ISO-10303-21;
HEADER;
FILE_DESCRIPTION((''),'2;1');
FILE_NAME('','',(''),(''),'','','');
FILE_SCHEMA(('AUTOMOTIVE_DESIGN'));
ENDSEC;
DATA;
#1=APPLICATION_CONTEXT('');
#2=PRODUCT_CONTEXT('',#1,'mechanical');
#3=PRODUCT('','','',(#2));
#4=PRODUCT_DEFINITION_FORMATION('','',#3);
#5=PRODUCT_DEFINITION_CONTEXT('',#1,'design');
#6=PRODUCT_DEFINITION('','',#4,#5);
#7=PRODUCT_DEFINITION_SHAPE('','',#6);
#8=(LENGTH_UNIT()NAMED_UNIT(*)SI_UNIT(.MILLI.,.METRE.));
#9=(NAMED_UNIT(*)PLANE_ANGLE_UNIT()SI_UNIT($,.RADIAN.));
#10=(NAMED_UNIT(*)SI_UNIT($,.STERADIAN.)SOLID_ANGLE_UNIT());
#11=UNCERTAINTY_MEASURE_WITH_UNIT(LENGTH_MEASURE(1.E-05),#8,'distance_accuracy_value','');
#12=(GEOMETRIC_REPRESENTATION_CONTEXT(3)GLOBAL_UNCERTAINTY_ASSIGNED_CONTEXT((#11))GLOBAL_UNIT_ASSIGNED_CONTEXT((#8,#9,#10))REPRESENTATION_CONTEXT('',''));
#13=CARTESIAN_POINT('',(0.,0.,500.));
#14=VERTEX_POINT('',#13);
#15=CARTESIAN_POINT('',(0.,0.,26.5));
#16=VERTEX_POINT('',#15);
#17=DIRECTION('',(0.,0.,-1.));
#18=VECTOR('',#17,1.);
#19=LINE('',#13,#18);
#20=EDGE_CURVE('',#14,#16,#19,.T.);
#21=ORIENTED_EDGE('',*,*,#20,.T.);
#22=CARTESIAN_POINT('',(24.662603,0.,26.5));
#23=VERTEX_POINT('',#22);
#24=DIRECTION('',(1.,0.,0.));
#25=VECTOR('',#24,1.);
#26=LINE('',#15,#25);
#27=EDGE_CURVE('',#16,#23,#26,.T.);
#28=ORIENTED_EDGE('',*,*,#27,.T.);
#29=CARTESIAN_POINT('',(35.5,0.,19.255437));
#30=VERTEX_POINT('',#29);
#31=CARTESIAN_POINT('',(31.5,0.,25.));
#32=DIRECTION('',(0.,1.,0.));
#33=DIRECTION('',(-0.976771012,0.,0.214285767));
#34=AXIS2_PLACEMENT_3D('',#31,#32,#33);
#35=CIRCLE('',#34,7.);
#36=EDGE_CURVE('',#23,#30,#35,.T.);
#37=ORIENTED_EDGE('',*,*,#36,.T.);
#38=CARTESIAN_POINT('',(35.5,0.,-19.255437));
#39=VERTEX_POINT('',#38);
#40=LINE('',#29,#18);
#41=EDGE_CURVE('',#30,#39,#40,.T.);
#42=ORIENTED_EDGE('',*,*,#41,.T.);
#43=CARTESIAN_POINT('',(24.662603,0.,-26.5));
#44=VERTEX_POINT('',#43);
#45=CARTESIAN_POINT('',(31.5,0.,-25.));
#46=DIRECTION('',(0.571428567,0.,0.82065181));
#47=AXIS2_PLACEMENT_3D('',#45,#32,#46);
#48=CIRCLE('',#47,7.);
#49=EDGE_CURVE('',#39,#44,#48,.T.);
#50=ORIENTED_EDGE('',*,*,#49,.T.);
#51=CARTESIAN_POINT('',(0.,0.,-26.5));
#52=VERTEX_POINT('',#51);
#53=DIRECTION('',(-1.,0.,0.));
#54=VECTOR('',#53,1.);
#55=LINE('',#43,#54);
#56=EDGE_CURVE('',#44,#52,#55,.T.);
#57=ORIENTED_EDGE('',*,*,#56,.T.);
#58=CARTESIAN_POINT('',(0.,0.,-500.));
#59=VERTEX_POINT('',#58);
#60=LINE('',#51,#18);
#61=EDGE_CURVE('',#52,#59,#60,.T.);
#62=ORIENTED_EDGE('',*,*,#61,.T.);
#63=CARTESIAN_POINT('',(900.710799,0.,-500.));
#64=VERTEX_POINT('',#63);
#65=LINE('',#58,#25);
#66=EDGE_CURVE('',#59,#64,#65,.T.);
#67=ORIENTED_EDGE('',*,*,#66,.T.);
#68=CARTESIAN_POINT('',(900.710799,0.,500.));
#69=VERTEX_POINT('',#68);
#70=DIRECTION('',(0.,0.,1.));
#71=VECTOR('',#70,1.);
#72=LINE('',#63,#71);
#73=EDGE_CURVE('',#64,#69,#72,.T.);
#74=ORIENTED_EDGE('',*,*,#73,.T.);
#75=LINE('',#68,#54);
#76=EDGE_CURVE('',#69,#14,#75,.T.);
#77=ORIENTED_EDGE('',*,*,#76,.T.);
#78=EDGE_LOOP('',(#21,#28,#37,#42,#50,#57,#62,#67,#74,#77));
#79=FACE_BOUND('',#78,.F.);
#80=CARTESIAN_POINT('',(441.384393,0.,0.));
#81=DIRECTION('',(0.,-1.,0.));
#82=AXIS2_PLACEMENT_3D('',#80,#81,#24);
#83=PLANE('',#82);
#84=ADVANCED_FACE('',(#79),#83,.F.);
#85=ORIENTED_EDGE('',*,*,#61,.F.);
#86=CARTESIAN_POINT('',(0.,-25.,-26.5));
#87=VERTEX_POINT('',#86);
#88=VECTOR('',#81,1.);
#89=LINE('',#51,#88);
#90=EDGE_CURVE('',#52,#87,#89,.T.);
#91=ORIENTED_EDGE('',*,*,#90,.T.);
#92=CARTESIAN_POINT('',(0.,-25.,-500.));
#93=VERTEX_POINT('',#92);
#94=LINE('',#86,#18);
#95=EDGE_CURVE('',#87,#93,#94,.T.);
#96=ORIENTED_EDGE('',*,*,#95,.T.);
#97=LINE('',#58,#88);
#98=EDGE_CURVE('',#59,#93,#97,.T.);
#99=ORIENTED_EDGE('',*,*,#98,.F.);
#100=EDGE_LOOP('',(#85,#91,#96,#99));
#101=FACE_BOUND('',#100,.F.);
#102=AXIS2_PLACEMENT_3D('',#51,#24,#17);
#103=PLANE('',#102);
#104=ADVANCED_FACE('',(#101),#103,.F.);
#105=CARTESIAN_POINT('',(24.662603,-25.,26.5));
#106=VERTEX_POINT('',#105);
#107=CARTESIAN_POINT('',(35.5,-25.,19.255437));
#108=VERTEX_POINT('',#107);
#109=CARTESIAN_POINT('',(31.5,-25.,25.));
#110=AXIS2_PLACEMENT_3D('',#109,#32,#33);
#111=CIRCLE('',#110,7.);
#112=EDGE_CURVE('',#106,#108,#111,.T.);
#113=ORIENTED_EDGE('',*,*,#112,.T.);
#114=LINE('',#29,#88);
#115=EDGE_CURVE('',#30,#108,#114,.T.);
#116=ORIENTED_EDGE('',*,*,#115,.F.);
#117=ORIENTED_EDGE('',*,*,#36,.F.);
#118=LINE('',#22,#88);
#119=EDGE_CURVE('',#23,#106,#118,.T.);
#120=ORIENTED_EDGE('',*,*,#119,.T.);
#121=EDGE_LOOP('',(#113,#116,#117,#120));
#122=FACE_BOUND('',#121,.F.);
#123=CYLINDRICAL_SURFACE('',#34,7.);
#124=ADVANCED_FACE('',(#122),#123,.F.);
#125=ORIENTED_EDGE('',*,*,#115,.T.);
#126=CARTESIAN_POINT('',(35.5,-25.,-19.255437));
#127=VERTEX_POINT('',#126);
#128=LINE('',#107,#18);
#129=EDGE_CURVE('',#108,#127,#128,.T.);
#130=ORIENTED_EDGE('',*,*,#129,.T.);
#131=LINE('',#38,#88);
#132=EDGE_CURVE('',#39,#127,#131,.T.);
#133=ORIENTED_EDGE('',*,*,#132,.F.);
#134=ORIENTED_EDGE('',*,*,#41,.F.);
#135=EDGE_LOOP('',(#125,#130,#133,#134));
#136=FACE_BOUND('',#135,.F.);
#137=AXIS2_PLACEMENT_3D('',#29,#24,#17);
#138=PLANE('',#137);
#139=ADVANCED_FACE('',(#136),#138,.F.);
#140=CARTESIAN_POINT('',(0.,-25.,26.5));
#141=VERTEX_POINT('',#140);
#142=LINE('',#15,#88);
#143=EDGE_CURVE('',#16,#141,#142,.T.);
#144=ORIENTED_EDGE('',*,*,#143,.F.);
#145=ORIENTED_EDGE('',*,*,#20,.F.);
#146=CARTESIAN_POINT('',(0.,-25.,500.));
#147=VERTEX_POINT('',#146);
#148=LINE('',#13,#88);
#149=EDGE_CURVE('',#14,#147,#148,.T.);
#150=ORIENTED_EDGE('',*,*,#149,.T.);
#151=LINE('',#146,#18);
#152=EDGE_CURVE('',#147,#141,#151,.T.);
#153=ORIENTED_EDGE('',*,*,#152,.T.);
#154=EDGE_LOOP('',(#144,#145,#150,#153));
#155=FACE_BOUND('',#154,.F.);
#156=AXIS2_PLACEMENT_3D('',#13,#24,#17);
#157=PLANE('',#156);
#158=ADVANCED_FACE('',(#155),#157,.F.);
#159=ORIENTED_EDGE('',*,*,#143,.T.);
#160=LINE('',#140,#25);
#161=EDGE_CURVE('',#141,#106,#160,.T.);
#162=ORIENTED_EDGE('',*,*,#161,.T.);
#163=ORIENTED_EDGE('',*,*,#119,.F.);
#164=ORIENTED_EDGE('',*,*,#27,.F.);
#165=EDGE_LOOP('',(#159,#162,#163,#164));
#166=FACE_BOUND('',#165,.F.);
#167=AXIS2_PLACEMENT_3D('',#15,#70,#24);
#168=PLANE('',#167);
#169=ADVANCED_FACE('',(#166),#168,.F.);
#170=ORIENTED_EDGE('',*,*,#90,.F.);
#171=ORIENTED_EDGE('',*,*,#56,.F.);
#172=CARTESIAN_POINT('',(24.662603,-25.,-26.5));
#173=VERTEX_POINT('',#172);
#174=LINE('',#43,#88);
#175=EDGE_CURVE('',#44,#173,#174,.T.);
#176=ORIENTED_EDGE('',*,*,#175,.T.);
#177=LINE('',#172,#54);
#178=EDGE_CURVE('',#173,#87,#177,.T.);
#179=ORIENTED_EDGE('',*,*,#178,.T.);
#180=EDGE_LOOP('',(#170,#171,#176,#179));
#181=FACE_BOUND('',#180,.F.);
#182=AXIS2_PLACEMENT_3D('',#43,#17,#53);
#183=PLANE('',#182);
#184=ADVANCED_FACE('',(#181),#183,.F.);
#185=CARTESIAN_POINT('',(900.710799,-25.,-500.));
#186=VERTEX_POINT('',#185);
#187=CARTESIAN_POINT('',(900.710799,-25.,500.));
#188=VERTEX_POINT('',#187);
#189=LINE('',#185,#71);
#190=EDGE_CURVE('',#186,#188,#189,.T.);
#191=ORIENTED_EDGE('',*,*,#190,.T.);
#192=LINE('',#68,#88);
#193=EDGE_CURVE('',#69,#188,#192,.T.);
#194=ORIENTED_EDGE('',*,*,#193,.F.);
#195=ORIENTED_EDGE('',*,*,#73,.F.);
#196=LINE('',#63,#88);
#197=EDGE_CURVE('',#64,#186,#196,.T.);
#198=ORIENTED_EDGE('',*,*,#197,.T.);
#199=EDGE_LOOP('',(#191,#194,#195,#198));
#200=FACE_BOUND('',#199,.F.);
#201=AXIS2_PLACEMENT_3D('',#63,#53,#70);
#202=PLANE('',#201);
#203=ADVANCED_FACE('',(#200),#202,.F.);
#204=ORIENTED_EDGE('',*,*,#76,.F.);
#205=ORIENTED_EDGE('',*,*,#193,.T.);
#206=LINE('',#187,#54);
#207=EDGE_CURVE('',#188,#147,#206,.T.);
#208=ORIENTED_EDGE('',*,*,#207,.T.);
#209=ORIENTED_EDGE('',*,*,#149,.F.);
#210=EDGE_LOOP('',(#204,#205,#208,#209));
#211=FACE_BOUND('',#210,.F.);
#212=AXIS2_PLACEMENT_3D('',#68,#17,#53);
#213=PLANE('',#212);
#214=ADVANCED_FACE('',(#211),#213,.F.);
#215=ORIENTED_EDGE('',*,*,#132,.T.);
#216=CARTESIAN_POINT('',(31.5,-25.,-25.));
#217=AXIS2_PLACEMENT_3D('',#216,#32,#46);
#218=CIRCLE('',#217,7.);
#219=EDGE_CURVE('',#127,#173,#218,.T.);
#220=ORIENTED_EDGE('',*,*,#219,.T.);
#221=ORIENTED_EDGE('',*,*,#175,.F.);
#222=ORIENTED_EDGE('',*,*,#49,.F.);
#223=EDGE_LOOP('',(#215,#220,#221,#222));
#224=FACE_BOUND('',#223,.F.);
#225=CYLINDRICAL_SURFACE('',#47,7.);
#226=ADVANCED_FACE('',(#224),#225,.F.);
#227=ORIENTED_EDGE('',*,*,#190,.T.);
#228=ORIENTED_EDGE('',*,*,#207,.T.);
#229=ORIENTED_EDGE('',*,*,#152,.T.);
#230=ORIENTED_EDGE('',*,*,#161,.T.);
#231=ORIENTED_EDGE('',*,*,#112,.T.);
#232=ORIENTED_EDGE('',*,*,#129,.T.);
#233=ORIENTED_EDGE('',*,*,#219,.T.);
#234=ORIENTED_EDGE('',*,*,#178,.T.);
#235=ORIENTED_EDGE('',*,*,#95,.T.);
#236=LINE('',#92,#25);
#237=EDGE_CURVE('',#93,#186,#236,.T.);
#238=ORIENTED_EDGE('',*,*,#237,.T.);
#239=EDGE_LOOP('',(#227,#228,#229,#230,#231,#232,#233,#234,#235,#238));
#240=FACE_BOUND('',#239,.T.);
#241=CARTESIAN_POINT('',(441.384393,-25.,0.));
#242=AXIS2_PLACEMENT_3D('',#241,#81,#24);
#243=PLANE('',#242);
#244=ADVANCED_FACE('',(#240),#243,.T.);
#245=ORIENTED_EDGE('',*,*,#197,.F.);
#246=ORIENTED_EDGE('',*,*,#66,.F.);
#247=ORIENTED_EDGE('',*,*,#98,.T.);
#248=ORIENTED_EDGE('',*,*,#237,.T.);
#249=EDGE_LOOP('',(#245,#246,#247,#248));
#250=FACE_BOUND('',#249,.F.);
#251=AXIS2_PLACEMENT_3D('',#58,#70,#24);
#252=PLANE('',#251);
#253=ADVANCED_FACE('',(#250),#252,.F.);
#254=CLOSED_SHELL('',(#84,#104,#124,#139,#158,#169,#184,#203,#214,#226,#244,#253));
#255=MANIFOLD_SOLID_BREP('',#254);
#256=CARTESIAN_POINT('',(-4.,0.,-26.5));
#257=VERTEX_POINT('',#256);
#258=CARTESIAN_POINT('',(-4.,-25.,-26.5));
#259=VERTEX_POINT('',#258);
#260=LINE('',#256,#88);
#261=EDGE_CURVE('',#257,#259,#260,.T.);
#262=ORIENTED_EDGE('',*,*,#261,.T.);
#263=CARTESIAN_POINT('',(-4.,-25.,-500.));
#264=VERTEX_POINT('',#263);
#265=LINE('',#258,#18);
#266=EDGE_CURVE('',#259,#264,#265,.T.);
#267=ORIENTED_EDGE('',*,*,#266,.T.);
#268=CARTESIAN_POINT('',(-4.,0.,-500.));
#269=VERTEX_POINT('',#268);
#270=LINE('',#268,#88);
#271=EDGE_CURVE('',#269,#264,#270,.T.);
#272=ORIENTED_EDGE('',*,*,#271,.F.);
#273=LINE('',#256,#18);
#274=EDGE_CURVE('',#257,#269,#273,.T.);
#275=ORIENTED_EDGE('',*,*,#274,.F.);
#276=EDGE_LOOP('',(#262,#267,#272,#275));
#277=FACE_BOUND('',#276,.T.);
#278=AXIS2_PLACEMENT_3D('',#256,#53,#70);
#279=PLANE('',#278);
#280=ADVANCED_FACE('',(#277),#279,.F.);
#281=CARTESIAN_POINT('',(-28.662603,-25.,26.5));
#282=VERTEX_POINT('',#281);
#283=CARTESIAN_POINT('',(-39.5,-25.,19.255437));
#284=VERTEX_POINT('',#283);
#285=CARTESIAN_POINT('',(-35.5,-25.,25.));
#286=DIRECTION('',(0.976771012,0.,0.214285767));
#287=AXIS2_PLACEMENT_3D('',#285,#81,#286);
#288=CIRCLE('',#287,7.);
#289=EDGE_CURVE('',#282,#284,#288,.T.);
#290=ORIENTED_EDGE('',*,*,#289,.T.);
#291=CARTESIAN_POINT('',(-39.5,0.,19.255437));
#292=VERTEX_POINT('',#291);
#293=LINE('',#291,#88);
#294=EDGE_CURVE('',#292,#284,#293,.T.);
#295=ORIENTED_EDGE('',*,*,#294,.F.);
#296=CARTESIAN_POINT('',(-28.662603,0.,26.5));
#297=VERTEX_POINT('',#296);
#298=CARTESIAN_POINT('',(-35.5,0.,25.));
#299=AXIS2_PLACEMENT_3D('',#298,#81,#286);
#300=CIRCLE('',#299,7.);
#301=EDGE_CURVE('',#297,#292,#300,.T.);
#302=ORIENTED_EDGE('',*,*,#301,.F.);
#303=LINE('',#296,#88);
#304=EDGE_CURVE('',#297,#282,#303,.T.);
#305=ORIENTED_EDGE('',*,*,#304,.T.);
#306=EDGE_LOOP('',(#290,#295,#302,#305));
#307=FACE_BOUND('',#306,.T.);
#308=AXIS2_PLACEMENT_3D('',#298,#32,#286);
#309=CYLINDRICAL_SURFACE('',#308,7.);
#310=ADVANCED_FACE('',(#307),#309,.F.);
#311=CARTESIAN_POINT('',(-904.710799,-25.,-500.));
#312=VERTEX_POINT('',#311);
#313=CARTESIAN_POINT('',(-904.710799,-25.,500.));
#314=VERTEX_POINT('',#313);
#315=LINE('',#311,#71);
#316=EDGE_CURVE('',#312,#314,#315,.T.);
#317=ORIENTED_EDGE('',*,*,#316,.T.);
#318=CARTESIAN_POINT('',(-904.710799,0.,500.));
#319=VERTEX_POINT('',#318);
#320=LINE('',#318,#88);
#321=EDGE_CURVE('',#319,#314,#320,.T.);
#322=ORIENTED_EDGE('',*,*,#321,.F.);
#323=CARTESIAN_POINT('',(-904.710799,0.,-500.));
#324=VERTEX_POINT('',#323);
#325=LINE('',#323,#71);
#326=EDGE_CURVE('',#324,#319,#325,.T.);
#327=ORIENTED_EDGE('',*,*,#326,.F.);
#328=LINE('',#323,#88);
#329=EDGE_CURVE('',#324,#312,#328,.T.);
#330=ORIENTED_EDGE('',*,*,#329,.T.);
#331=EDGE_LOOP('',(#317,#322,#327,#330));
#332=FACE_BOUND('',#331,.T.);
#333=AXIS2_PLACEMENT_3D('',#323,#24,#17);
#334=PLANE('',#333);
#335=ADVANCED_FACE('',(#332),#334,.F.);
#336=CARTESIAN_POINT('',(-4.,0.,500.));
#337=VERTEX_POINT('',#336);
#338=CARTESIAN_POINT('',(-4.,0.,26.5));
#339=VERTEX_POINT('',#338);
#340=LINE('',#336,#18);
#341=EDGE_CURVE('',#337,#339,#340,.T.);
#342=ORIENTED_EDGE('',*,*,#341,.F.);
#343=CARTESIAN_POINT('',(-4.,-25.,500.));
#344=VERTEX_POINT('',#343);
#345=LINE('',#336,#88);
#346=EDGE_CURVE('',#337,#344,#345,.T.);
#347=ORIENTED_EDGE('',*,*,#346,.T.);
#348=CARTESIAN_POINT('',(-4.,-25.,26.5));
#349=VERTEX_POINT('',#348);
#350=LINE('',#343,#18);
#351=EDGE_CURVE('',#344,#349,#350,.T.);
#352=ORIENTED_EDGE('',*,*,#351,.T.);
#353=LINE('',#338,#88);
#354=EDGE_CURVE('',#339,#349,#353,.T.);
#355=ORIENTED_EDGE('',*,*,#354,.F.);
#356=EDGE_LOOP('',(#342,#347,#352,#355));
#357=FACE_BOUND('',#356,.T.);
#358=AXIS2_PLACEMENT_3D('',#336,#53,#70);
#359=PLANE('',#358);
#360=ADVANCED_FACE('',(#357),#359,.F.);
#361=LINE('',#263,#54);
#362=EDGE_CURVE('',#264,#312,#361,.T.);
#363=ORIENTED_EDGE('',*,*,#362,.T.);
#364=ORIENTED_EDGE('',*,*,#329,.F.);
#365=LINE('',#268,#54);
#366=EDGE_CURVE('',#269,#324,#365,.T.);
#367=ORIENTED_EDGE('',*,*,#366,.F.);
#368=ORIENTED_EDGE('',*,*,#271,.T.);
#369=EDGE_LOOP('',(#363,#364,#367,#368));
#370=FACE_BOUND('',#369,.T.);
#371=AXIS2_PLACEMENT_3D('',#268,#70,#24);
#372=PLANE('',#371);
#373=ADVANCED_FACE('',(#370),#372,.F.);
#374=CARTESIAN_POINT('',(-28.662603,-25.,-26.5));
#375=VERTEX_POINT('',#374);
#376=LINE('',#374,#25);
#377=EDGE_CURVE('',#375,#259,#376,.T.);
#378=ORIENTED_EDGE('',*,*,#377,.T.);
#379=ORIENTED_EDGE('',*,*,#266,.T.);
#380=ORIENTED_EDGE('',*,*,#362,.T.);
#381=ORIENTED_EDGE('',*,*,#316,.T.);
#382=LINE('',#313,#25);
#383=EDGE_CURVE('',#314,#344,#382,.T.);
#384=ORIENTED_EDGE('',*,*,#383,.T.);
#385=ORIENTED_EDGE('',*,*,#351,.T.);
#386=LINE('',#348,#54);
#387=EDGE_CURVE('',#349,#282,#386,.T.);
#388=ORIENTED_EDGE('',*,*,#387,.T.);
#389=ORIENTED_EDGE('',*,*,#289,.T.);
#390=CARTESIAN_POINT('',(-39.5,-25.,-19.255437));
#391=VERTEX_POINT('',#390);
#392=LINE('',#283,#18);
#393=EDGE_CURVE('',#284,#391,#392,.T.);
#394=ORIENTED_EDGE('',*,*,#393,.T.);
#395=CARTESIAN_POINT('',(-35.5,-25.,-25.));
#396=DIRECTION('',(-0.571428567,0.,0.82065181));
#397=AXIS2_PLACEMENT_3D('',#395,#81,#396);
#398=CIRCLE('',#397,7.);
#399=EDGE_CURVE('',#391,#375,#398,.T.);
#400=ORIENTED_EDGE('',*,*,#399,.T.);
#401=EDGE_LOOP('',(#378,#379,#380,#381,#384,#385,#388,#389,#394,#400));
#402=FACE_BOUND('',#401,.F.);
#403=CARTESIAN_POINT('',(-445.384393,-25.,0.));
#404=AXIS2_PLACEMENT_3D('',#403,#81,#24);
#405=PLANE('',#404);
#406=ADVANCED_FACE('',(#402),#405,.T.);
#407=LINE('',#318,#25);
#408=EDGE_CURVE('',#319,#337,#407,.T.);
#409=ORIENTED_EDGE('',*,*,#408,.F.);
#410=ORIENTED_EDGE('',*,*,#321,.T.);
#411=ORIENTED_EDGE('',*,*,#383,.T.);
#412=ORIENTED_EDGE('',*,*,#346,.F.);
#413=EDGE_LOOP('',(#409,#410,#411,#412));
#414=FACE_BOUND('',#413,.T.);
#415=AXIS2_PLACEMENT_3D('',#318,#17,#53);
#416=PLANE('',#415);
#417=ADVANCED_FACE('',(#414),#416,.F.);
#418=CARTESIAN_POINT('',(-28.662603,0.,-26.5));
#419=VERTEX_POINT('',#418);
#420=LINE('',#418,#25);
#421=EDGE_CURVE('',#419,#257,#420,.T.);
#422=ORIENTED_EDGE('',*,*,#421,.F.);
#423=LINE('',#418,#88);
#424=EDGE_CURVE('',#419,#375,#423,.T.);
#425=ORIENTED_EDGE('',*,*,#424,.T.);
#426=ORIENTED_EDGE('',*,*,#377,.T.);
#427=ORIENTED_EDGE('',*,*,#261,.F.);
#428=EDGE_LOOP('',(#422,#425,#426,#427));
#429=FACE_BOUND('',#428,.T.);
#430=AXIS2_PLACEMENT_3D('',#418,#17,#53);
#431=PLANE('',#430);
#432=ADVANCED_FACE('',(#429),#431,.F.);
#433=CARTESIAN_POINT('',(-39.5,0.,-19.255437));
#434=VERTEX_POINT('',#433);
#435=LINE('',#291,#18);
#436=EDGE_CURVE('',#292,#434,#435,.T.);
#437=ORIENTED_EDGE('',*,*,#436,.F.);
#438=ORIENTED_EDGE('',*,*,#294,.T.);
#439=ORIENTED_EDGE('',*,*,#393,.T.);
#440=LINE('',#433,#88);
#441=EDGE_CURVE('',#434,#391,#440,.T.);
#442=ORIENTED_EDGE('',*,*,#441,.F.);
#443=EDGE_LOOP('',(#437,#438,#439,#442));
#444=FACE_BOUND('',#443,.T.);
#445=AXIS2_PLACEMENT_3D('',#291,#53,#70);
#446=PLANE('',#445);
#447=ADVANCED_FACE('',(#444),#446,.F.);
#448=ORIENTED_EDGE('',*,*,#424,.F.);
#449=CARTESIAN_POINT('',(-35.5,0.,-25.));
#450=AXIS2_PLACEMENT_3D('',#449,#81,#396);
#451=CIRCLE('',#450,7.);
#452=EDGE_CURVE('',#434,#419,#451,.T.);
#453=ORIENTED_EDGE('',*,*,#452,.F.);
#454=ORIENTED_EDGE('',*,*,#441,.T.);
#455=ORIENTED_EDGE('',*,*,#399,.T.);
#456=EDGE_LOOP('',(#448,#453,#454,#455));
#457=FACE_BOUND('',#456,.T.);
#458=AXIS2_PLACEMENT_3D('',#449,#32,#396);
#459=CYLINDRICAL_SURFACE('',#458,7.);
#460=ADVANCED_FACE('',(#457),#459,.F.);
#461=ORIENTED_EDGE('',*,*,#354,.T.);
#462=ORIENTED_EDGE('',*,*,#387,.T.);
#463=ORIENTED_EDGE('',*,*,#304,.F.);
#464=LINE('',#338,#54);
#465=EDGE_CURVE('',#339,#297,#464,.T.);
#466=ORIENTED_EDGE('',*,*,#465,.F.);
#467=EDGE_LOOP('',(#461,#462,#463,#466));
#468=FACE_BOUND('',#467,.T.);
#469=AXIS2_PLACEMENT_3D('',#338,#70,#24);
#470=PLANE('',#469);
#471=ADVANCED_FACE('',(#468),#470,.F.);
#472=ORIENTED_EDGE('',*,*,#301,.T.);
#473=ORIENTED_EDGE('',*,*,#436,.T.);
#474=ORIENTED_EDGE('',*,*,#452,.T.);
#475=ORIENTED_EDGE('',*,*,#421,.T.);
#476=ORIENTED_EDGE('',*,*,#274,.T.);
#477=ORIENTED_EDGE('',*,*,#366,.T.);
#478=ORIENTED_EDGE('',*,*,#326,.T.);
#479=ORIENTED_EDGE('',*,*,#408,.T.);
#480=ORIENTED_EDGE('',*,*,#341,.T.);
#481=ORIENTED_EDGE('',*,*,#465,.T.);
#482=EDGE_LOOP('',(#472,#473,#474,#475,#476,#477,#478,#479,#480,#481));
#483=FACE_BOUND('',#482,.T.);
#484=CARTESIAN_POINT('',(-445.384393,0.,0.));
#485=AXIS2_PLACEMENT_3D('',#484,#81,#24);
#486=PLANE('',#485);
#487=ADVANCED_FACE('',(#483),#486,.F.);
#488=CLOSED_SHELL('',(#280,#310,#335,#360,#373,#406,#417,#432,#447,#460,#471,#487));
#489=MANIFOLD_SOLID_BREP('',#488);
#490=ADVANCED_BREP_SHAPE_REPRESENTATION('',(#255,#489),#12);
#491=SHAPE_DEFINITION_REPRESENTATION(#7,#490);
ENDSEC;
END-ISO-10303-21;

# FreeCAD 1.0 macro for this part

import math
import FreeCAD as App
import Part
import Sketcher

V = App.Vector
Q = App.Units.Quantity

doc = App.newDocument("Part")
body = doc.addObject("PartDesign::Body", "Body")

sketch1 = body.newObject("Sketcher::SketchObject", "Sketch")
sketch1.AttachmentSupport = (doc.getObject("XZ_Plane"), [""])
sketch1.MapMode = "FlatFace"
sketch1.addGeometry([
    Part.LineSegment(V(900.710799, 500, 0), V(0, 500, 0)),
    Part.LineSegment(V(0, 500, 0), V(0, 26.5, 0)),
    Part.LineSegment(V(0, 26.5, 0), V(24.662603, 26.5, 0)),
    Part.ArcOfCircle(Part.Circle(V(31.5, 25, 0), V(0, 0, 1), 7), math.radians(-55.150096), math.radians(167.626372)),
    Part.LineSegment(V(35.5, 19.255437, 0), V(35.5, -19.255437, 0)),
    Part.ArcOfCircle(Part.Circle(V(31.5, -25, 0), V(0, 0, 1), 7), math.radians(-167.626372), math.radians(55.150096)),
    Part.LineSegment(V(24.662603, -26.5, 0), V(0, -26.5, 0)),
    Part.LineSegment(V(0, -26.5, 0), V(0, -500, 0)),
    Part.LineSegment(V(0, -500, 0), V(900.710799, -500, 0)),
    Part.LineSegment(V(900.710799, -500, 0), V(900.710799, 500, 0)),
], False)
sketch1.addConstraint([
    Sketcher.Constraint("Coincident", 0, 2, 1, 1),
    Sketcher.Constraint("Coincident", 1, 2, 2, 1),
    Sketcher.Constraint("Coincident", 2, 2, 3, 2),
    Sketcher.Constraint("Coincident", 3, 1, 4, 1),
    Sketcher.Constraint("Coincident", 4, 2, 5, 2),
    Sketcher.Constraint("Coincident", 5, 1, 6, 1),
    Sketcher.Constraint("Coincident", 6, 2, 7, 1),
    Sketcher.Constraint("Coincident", 7, 2, 8, 1),
    Sketcher.Constraint("Coincident", 8, 2, 9, 1),
    Sketcher.Constraint("Coincident", 9, 2, 0, 1),
    Sketcher.Constraint("Horizontal", 0),
    Sketcher.Constraint("Vertical", 1),
    Sketcher.Constraint("Horizontal", 2),
    Sketcher.Constraint("Vertical", 4),
    Sketcher.Constraint("Horizontal", 6),
    Sketcher.Constraint("Vertical", 7),
    Sketcher.Constraint("Horizontal", 8),
    Sketcher.Constraint("Vertical", 9),
    Sketcher.Constraint("Equal", 3, 5),
    Sketcher.Constraint("Symmetric", 1, 2, 6, 2, -1, 1),
    Sketcher.Constraint("Symmetric", 3, 3, 5, 3, -1),
    Sketcher.Constraint("Symmetric", 0, 2, 7, 2, -1),
    Sketcher.Constraint("Radius", 3, Q("7 mm")),
    Sketcher.Constraint("DistanceY", 9, 1, 9, 2, Q("1000 mm")),
    Sketcher.Constraint("DistanceY", 1, 2, 1, 1, Q("473.5 mm")),
    Sketcher.Constraint("DistanceY", -1, 1, 3, 3, Q("25 mm")),
    Sketcher.Constraint("DistanceX", 3, 3, 3, 1, Q("4 mm")),
    Sketcher.Constraint("DistanceX", -1, 1, 3, 3, Q("31.5 mm")),
    Sketcher.Constraint("DistanceX", 0, 2, 0, 1, Q("900.710799 mm")),
])
pad1 = body.newObject("PartDesign::Pad", "Pad")
pad1.Profile = sketch1
pad1.Length = 25
body2 = doc.addObject("PartDesign::Body", "Body001")
doc.recompute()

mirroring = doc.addObject("Part::Mirroring", "Mirroring")
mirroring.Source = body
mirroring.Base = V(-2, -12.5, 263.25)
mirroring.Normal = V(-1, 0, 0)
body2.BaseFeature = mirroring
doc.recompute()
mirroring.Visibility = False

doc.recompute()
